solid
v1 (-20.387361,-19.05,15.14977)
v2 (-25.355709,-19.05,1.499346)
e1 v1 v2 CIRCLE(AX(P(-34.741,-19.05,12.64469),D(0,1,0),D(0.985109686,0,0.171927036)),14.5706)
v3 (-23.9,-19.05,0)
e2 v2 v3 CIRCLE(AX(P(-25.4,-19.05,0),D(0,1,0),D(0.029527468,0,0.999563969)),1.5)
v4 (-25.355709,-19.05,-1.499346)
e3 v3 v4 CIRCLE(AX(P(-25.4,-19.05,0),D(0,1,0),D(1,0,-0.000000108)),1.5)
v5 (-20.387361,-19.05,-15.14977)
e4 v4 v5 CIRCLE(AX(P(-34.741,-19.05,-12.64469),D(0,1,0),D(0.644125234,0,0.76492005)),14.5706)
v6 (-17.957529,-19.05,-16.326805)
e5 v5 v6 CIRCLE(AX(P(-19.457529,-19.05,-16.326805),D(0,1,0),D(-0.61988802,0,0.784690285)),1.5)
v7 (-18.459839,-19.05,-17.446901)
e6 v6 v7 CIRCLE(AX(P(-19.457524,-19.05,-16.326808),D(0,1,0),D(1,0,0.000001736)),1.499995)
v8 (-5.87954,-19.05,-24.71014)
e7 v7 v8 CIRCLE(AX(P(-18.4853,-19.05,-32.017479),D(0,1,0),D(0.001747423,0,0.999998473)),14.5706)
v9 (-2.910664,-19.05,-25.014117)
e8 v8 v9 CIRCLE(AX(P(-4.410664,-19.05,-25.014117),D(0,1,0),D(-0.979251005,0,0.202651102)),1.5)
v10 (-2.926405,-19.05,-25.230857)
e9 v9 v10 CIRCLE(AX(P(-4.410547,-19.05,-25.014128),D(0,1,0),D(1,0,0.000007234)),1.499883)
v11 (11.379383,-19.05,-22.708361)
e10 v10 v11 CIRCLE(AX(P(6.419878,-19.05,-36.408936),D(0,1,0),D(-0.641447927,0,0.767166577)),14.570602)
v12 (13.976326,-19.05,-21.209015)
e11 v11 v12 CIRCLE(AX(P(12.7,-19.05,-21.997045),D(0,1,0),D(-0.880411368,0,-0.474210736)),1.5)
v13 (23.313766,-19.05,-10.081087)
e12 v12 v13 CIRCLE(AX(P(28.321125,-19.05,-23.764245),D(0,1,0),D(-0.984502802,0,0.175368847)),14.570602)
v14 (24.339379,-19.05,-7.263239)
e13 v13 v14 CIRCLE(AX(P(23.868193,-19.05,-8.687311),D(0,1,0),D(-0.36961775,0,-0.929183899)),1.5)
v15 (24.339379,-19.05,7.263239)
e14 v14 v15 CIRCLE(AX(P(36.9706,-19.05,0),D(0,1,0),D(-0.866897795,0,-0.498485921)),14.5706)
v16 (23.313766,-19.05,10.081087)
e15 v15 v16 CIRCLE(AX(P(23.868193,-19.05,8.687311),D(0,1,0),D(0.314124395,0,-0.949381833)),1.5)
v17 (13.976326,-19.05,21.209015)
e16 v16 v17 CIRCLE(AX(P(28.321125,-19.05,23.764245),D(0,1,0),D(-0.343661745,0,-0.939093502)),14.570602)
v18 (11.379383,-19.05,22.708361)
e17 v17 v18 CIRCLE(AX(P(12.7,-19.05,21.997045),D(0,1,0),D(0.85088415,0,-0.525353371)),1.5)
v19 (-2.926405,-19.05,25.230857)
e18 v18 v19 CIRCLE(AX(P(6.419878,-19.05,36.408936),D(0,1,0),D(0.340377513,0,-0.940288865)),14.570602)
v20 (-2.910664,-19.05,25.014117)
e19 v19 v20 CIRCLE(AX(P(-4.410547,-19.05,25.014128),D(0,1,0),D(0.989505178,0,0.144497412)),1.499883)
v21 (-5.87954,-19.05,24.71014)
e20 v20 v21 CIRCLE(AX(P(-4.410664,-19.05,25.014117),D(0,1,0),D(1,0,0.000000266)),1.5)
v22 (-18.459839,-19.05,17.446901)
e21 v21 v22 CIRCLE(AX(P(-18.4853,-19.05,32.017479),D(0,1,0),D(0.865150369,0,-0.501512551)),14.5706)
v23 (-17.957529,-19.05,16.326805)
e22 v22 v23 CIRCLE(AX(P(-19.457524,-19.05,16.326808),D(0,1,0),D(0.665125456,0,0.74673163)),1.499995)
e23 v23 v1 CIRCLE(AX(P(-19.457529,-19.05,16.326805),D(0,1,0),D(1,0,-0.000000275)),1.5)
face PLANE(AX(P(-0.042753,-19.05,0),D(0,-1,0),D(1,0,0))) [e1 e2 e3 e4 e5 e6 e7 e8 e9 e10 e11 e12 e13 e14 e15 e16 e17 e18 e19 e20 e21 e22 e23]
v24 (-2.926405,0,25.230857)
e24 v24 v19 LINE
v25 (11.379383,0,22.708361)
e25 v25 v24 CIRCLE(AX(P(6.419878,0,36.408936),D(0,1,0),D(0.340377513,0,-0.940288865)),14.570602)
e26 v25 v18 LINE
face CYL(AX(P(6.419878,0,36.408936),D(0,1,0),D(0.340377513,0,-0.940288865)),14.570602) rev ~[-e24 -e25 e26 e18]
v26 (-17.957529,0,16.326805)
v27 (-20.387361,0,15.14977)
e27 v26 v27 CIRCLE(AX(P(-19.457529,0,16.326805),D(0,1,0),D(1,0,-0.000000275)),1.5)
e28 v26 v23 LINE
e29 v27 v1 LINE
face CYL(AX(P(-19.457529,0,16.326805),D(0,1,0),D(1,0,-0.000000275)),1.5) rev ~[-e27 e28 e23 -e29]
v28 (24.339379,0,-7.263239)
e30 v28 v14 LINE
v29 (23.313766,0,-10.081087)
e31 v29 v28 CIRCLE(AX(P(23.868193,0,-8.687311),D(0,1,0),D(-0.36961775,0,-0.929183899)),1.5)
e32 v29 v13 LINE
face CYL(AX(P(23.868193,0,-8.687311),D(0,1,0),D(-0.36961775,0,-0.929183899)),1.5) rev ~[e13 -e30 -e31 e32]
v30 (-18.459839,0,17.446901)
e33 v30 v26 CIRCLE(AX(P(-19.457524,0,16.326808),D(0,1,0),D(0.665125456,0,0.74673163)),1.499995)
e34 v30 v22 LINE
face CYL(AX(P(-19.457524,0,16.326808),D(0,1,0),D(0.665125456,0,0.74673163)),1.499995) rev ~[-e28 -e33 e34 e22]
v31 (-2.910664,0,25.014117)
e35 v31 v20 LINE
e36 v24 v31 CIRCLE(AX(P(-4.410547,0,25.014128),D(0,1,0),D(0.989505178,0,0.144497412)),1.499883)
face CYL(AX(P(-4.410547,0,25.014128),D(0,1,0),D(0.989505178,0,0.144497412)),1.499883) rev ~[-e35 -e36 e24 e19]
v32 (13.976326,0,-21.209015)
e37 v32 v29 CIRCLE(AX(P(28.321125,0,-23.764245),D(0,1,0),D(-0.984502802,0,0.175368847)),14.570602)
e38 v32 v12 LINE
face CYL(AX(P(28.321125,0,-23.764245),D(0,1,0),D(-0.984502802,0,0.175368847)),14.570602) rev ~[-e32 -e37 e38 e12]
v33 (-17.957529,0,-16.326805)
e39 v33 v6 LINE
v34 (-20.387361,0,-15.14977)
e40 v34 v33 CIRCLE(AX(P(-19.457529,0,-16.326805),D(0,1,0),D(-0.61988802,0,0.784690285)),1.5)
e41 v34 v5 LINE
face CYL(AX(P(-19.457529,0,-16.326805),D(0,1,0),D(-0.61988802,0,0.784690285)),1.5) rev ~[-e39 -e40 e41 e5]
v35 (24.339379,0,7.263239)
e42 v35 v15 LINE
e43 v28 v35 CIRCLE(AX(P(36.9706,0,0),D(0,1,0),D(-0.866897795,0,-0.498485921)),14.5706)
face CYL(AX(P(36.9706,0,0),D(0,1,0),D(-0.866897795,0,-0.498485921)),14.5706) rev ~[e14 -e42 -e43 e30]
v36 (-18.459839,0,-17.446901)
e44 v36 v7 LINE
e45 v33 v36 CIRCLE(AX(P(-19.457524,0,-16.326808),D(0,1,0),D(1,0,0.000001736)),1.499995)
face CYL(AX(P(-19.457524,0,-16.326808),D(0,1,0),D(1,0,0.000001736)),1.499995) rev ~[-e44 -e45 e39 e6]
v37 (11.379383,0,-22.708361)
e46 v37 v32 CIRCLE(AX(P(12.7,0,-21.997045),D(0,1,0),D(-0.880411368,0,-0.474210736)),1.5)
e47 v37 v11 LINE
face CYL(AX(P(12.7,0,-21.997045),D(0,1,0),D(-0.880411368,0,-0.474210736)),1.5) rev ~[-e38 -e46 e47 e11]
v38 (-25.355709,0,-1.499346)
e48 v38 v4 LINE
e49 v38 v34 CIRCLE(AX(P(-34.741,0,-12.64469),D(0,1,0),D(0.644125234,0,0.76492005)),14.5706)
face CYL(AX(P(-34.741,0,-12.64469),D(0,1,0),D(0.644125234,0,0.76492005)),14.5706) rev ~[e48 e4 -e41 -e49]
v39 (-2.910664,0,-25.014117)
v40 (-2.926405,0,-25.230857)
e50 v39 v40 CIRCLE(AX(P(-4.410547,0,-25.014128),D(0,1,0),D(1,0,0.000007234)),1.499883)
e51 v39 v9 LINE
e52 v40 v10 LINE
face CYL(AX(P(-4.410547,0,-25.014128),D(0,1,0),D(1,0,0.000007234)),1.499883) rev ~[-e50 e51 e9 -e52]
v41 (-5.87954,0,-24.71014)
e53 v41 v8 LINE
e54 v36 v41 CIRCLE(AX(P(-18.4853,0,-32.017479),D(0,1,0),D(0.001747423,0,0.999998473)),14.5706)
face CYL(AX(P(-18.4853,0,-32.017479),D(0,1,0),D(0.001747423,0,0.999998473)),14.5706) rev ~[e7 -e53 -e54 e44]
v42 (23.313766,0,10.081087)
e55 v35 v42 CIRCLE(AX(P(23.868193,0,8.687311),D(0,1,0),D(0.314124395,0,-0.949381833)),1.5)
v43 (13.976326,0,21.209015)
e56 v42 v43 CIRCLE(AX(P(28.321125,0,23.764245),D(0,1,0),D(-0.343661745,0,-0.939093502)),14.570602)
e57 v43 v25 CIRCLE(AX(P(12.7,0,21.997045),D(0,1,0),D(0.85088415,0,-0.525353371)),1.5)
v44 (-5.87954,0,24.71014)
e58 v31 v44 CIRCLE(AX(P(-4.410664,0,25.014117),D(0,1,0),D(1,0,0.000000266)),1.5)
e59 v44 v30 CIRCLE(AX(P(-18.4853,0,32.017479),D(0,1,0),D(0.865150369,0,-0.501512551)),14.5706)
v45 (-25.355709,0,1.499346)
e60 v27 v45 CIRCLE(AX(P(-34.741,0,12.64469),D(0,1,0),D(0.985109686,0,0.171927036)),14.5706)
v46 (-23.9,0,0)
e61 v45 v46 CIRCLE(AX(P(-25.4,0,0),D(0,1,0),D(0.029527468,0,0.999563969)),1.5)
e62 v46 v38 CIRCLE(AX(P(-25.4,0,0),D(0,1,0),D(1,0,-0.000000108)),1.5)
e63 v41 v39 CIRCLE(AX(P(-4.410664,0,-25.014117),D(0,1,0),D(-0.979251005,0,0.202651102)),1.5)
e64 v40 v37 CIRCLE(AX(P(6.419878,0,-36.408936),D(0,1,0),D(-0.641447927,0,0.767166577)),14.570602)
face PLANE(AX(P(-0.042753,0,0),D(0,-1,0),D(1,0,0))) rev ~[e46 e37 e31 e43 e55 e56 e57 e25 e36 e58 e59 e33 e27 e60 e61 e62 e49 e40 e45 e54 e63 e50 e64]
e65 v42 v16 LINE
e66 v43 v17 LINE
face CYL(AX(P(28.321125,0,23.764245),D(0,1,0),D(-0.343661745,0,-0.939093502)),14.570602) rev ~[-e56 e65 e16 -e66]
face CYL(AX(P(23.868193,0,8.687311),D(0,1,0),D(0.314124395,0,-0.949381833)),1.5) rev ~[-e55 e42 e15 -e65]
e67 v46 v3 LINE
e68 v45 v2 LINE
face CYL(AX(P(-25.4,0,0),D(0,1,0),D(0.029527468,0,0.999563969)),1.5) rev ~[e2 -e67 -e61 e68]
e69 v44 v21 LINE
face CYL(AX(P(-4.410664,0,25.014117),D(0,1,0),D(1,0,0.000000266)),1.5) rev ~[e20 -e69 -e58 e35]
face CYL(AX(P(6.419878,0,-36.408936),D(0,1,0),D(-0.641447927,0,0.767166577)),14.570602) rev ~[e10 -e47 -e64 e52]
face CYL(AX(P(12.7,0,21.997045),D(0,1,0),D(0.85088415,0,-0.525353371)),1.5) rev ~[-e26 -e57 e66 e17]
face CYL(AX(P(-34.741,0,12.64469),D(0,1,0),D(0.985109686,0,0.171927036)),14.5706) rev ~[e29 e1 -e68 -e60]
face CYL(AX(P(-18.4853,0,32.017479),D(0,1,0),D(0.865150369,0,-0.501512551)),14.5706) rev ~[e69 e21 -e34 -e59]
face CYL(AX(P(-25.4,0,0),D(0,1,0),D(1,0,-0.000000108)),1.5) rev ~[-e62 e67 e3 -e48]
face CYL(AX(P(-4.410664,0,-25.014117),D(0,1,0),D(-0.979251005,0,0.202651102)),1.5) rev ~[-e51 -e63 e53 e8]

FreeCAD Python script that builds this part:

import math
import FreeCAD as App
import Part
import Sketcher
Q = App.Units.Quantity

doc = App.newDocument("Part")
params = doc.addObject("Spreadsheet::Sheet", "Params")
for row, (alias, value) in enumerate([
    ("sketch1_radius", "1.5 mm"),
    ("pad1_length", "19.05 mm"),
], start=1):
    params.set(f"A{row}", alias)
    params.set(f"B{row}", "=" + value)
    params.setAlias(f"B{row}", alias)

body = doc.addObject("PartDesign::Body", "Body")

sketch1 = body.newObject("Sketcher::SketchObject", "Sketch")
sketch1.AttachmentSupport = (doc.getObject("XZ_Plane"), [""])
sketch1.MapMode = "FlatFace"
sketch1.addGeometry([
    Part.ArcOfCircle(Part.Circle(App.Vector(36.9706, 0, 0), App.Vector(0, 0, 1), 14.5706), math.radians(150.10012), math.radians(209.89988)),
    Part.ArcOfCircle(Part.Circle(App.Vector(23.868193, 8.687311, 0), App.Vector(0, 0, 1), 1.5), math.radians(111.692045), math.radians(288.307962)),
    Part.ArcOfCircle(Part.Circle(App.Vector(28.321125, 23.764245, 0), App.Vector(0, 0, 1), 14.570602), math.radians(-169.899877), math.radians(-110.100125)),
    Part.ArcOfCircle(Part.Circle(App.Vector(12.7, 21.997045, 0), App.Vector(0, 0, 1), 1.5), math.radians(151.692026), math.radians(328.307965)),
    Part.ArcOfCircle(Part.Circle(App.Vector(6.419878, 36.408936, 0), App.Vector(0, 0, 1), 14.570602), math.radians(-129.899873), math.radians(-70.100124)),
    Part.ArcOfCircle(Part.Circle(App.Vector(-4.410547, 25.014128, 0), App.Vector(0, 0, 1), 1.499883), math.radians(-0.000415), math.radians(8.308176)),
    Part.ArcOfCircle(Part.Circle(App.Vector(-4.410664, 25.014117, 0), App.Vector(0, 0, 1), 1.5), math.radians(-168.307969), math.radians(0.000015)),
    Part.ArcOfCircle(Part.Circle(App.Vector(-18.4853, 32.017479, 0), App.Vector(0, 0, 1), 14.5706), math.radians(-89.89988), math.radians(-30.10012)),
    Part.ArcOfCircle(Part.Circle(App.Vector(-19.457524, 16.326808, 0), App.Vector(0, 0, 1), 1.499995), math.radians(-0.000099), math.radians(48.308049)),
    Part.ArcOfCircle(Part.Circle(App.Vector(-19.457529, 16.326805, 0), App.Vector(0, 0, 1), 1.5), math.radians(-128.307958), math.radians(-0.000016)),
    Part.ArcOfCircle(Part.Circle(App.Vector(-34.741, 12.64469, 0), App.Vector(0, 0, 1), 14.5706), math.radians(-49.89988), math.radians(9.89988)),
    Part.ArcOfCircle(Part.Circle(App.Vector(-25.4, 0, 0), App.Vector(0, 0, 1), 1.5), math.radians(0.000006), math.radians(88.307955)),
    Part.ArcOfCircle(Part.Circle(App.Vector(-25.4, 0, 0), App.Vector(0, 0, 1), 1.5), math.radians(-88.307955), math.radians(-0.000006)),
    Part.ArcOfCircle(Part.Circle(App.Vector(-34.741, -12.64469, 0), App.Vector(0, 0, 1), 14.5706), math.radians(-9.89988), math.radians(49.89988)),
    Part.ArcOfCircle(Part.Circle(App.Vector(-19.457529, -16.326805, 0), App.Vector(0, 0, 1), 1.5), math.radians(0.000016), math.radians(128.307958)),
    Part.ArcOfCircle(Part.Circle(App.Vector(-19.457524, -16.326808, 0), App.Vector(0, 0, 1), 1.499995), math.radians(-48.308049), math.radians(0.000099)),
    Part.ArcOfCircle(Part.Circle(App.Vector(-18.4853, -32.017479, 0), App.Vector(0, 0, 1), 14.5706), math.radians(30.10012), math.radians(89.89988)),
    Part.ArcOfCircle(Part.Circle(App.Vector(-4.410664, -25.014117, 0), App.Vector(0, 0, 1), 1.5), math.radians(-0.000015), math.radians(168.307969)),
    Part.ArcOfCircle(Part.Circle(App.Vector(-4.410547, -25.014128, 0), App.Vector(0, 0, 1), 1.499883), math.radians(-8.308176), math.radians(0.000415)),
    Part.ArcOfCircle(Part.Circle(App.Vector(6.419878, -36.408936, 0), App.Vector(0, 0, 1), 14.570602), math.radians(70.100124), math.radians(129.899873)),
    Part.ArcOfCircle(Part.Circle(App.Vector(12.7, -21.997045, 0), App.Vector(0, 0, 1), 1.5), math.radians(31.692035), math.radians(208.307974)),
    Part.ArcOfCircle(Part.Circle(App.Vector(28.321125, -23.764245, 0), App.Vector(0, 0, 1), 14.570602), math.radians(110.100125), math.radians(169.899877)),
    Part.ArcOfCircle(Part.Circle(App.Vector(23.868193, -8.687311, 0), App.Vector(0, 0, 1), 1.5), math.radians(71.692038), math.radians(248.307955)),
], False)
sketch1.addConstraint([
    Sketcher.Constraint("Coincident", 0, 1, 1, 2),
    Sketcher.Constraint("Coincident", 1, 1, 2, 2),
    Sketcher.Constraint("Coincident", 2, 1, 3, 2),
    Sketcher.Constraint("Coincident", 3, 1, 4, 2),
    Sketcher.Constraint("Coincident", 4, 1, 5, 2),
    Sketcher.Constraint("Coincident", 5, 1, 6, 2),
    Sketcher.Constraint("Coincident", 6, 1, 7, 2),
    Sketcher.Constraint("Coincident", 7, 1, 8, 2),
    Sketcher.Constraint("Tangent", 8, 1, 9, 2),
    Sketcher.Constraint("Coincident", 9, 1, 10, 2),
    Sketcher.Constraint("Coincident", 10, 1, 11, 2),
    Sketcher.Constraint("Tangent", 11, 1, 12, 2),
    Sketcher.Constraint("Coincident", 12, 1, 13, 2),
    Sketcher.Constraint("Coincident", 13, 1, 14, 2),
    Sketcher.Constraint("Tangent", 14, 1, 15, 2),
    Sketcher.Constraint("Coincident", 15, 1, 16, 2),
    Sketcher.Constraint("Coincident", 16, 1, 17, 2),
    Sketcher.Constraint("Coincident", 17, 1, 18, 2),
    Sketcher.Constraint("Coincident", 18, 1, 19, 2),
    Sketcher.Constraint("Coincident", 19, 1, 20, 2),
    Sketcher.Constraint("Coincident", 20, 1, 21, 2),
    Sketcher.Constraint("Coincident", 21, 1, 22, 2),
    Sketcher.Constraint("Coincident", 22, 1, 0, 2),
    Sketcher.Constraint("Equal", 0, 2),
    Sketcher.Constraint("Equal", 1, 3),
    Sketcher.Constraint("Equal", 2, 4),
    Sketcher.Constraint("Equal", 3, 6),
    Sketcher.Constraint("Equal", 2, 7),
    Sketcher.Constraint("Equal", 6, 9),
    Sketcher.Constraint("Equal", 7, 10),
    Sketcher.Constraint("Equal", 9, 11),
    Sketcher.Constraint("Equal", 11, 12),
    Sketcher.Constraint("Equal", 10, 13),
    Sketcher.Constraint("Equal", 12, 14),
    Sketcher.Constraint("Equal", 8, 15),
    Sketcher.Constraint("Equal", 13, 16),
    Sketcher.Constraint("Equal", 14, 17),
    Sketcher.Constraint("Equal", 5, 18),
    Sketcher.Constraint("Equal", 4, 19),
    Sketcher.Constraint("Equal", 17, 20),
    Sketcher.Constraint("Equal", 19, 21),
    Sketcher.Constraint("Equal", 20, 22),
    Sketcher.Constraint("Symmetric", 10, 3, 13, 3, -1),
    Sketcher.Constraint("Symmetric", 8, 3, 14, 3, -1),
    Sketcher.Constraint("Symmetric", 7, 3, 16, 3, -1),
    Sketcher.Constraint("Symmetric", 6, 3, 17, 3, -1),
    Sketcher.Constraint("Symmetric", 4, 3, 19, 3, -1),
    Sketcher.Constraint("Symmetric", 3, 3, 20, 3, -1),
    Sketcher.Constraint("Symmetric", 2, 3, 21, 3, -1),
    Sketcher.Constraint("Symmetric", 1, 3, 22, 3, -1),
    Sketcher.Constraint("Symmetric", 8, 1, 14, 1, -1),
    Sketcher.Constraint("PointOnObject", 0, 3, -1),
    Sketcher.Constraint("PointOnObject", 11, 3, -1),
    Sketcher.Constraint("PointOnObject", 11, 1, -1),
    Sketcher.Constraint("Horizontal", 6, 3, 5, 1),
    Sketcher.Constraint("Horizontal", 9, 3, 8, 1),
    Sketcher.Constraint("Vertical", 4, 1, 18, 1),
    Sketcher.Constraint("Radius", 1, Q("1.5 mm")),
    Sketcher.Constraint("DistanceX", -1, 1, 3, 3, Q("12.7 mm")),
    Sketcher.Constraint("DistanceX", 11, 3, -1, 1, Q("25.4 mm")),
    Sketcher.Constraint("Radius", 0, Q("14.5706 mm")),
    Sketcher.Constraint("DistanceX", 10, 3, -1, 1, Q("34.741 mm")),
    Sketcher.Constraint("Radius", 5, Q("1.499883 mm")),
    Sketcher.Constraint("DistanceX", -1, 1, 0, 3, Q("36.9706 mm")),
    Sketcher.Constraint("DistanceX", 7, 3, -1, 1, Q("18.4853 mm")),
    Sketcher.Constraint("DistanceY", -1, 1, 7, 1, Q("17.446901 mm")),
    Sketcher.Constraint("DistanceY", 3, 3, 2, 3, Q("1.7672 mm")),
    Sketcher.Constraint("DistanceX", 8, 3, 4, 3, Q("25.877401 mm")),
    Sketcher.Constraint("DistanceX", 2, 1, 2, 3, Q("14.344799 mm")),
    Sketcher.Constraint("DistanceX", 7, 1, 6, 1, Q("12.580299 mm")),
    Sketcher.Constraint("DistanceY", -1, 1, 1, 3, Q("8.687311 mm")),
    Sketcher.Constraint("DistanceX", 9, 3, -1, 1, Q("19.457529 mm")),
    Sketcher.Constraint("DistanceY", -1, 1, 10, 3, Q("12.64469 mm")),
    Sketcher.Constraint("DistanceX", -1, 1, 0, 1, Q("24.339379 mm")),
    Sketcher.Constraint("DistanceY", -1, 1, 3, 1, Q("22.708361 mm")),
    Sketcher.Constraint("DistanceX", 6, 1, -1, 1, Q("5.87954 mm")),
    Sketcher.Constraint("DistanceY", 3, 3, 4, 3, Q("14.411891 mm")),
    Sketcher.Constraint("DistanceY", 5, 3, 4, 3, Q("11.394808 mm")),
    Sketcher.Constraint("DistanceX", 5, 3, 1, 3, Q("28.278739 mm")),
    Sketcher.Constraint("DistanceY", 19, 3, 17, 1, Q("11.394819 mm")),
])
sketch1.setExpression("Constraints[57]", "Params.sketch1_radius")
pad1 = body.newObject("PartDesign::Pad", "Pad")
pad1.Profile = sketch1
pad1.setExpression("Length", "Params.pad1_length")

doc.recompute()
